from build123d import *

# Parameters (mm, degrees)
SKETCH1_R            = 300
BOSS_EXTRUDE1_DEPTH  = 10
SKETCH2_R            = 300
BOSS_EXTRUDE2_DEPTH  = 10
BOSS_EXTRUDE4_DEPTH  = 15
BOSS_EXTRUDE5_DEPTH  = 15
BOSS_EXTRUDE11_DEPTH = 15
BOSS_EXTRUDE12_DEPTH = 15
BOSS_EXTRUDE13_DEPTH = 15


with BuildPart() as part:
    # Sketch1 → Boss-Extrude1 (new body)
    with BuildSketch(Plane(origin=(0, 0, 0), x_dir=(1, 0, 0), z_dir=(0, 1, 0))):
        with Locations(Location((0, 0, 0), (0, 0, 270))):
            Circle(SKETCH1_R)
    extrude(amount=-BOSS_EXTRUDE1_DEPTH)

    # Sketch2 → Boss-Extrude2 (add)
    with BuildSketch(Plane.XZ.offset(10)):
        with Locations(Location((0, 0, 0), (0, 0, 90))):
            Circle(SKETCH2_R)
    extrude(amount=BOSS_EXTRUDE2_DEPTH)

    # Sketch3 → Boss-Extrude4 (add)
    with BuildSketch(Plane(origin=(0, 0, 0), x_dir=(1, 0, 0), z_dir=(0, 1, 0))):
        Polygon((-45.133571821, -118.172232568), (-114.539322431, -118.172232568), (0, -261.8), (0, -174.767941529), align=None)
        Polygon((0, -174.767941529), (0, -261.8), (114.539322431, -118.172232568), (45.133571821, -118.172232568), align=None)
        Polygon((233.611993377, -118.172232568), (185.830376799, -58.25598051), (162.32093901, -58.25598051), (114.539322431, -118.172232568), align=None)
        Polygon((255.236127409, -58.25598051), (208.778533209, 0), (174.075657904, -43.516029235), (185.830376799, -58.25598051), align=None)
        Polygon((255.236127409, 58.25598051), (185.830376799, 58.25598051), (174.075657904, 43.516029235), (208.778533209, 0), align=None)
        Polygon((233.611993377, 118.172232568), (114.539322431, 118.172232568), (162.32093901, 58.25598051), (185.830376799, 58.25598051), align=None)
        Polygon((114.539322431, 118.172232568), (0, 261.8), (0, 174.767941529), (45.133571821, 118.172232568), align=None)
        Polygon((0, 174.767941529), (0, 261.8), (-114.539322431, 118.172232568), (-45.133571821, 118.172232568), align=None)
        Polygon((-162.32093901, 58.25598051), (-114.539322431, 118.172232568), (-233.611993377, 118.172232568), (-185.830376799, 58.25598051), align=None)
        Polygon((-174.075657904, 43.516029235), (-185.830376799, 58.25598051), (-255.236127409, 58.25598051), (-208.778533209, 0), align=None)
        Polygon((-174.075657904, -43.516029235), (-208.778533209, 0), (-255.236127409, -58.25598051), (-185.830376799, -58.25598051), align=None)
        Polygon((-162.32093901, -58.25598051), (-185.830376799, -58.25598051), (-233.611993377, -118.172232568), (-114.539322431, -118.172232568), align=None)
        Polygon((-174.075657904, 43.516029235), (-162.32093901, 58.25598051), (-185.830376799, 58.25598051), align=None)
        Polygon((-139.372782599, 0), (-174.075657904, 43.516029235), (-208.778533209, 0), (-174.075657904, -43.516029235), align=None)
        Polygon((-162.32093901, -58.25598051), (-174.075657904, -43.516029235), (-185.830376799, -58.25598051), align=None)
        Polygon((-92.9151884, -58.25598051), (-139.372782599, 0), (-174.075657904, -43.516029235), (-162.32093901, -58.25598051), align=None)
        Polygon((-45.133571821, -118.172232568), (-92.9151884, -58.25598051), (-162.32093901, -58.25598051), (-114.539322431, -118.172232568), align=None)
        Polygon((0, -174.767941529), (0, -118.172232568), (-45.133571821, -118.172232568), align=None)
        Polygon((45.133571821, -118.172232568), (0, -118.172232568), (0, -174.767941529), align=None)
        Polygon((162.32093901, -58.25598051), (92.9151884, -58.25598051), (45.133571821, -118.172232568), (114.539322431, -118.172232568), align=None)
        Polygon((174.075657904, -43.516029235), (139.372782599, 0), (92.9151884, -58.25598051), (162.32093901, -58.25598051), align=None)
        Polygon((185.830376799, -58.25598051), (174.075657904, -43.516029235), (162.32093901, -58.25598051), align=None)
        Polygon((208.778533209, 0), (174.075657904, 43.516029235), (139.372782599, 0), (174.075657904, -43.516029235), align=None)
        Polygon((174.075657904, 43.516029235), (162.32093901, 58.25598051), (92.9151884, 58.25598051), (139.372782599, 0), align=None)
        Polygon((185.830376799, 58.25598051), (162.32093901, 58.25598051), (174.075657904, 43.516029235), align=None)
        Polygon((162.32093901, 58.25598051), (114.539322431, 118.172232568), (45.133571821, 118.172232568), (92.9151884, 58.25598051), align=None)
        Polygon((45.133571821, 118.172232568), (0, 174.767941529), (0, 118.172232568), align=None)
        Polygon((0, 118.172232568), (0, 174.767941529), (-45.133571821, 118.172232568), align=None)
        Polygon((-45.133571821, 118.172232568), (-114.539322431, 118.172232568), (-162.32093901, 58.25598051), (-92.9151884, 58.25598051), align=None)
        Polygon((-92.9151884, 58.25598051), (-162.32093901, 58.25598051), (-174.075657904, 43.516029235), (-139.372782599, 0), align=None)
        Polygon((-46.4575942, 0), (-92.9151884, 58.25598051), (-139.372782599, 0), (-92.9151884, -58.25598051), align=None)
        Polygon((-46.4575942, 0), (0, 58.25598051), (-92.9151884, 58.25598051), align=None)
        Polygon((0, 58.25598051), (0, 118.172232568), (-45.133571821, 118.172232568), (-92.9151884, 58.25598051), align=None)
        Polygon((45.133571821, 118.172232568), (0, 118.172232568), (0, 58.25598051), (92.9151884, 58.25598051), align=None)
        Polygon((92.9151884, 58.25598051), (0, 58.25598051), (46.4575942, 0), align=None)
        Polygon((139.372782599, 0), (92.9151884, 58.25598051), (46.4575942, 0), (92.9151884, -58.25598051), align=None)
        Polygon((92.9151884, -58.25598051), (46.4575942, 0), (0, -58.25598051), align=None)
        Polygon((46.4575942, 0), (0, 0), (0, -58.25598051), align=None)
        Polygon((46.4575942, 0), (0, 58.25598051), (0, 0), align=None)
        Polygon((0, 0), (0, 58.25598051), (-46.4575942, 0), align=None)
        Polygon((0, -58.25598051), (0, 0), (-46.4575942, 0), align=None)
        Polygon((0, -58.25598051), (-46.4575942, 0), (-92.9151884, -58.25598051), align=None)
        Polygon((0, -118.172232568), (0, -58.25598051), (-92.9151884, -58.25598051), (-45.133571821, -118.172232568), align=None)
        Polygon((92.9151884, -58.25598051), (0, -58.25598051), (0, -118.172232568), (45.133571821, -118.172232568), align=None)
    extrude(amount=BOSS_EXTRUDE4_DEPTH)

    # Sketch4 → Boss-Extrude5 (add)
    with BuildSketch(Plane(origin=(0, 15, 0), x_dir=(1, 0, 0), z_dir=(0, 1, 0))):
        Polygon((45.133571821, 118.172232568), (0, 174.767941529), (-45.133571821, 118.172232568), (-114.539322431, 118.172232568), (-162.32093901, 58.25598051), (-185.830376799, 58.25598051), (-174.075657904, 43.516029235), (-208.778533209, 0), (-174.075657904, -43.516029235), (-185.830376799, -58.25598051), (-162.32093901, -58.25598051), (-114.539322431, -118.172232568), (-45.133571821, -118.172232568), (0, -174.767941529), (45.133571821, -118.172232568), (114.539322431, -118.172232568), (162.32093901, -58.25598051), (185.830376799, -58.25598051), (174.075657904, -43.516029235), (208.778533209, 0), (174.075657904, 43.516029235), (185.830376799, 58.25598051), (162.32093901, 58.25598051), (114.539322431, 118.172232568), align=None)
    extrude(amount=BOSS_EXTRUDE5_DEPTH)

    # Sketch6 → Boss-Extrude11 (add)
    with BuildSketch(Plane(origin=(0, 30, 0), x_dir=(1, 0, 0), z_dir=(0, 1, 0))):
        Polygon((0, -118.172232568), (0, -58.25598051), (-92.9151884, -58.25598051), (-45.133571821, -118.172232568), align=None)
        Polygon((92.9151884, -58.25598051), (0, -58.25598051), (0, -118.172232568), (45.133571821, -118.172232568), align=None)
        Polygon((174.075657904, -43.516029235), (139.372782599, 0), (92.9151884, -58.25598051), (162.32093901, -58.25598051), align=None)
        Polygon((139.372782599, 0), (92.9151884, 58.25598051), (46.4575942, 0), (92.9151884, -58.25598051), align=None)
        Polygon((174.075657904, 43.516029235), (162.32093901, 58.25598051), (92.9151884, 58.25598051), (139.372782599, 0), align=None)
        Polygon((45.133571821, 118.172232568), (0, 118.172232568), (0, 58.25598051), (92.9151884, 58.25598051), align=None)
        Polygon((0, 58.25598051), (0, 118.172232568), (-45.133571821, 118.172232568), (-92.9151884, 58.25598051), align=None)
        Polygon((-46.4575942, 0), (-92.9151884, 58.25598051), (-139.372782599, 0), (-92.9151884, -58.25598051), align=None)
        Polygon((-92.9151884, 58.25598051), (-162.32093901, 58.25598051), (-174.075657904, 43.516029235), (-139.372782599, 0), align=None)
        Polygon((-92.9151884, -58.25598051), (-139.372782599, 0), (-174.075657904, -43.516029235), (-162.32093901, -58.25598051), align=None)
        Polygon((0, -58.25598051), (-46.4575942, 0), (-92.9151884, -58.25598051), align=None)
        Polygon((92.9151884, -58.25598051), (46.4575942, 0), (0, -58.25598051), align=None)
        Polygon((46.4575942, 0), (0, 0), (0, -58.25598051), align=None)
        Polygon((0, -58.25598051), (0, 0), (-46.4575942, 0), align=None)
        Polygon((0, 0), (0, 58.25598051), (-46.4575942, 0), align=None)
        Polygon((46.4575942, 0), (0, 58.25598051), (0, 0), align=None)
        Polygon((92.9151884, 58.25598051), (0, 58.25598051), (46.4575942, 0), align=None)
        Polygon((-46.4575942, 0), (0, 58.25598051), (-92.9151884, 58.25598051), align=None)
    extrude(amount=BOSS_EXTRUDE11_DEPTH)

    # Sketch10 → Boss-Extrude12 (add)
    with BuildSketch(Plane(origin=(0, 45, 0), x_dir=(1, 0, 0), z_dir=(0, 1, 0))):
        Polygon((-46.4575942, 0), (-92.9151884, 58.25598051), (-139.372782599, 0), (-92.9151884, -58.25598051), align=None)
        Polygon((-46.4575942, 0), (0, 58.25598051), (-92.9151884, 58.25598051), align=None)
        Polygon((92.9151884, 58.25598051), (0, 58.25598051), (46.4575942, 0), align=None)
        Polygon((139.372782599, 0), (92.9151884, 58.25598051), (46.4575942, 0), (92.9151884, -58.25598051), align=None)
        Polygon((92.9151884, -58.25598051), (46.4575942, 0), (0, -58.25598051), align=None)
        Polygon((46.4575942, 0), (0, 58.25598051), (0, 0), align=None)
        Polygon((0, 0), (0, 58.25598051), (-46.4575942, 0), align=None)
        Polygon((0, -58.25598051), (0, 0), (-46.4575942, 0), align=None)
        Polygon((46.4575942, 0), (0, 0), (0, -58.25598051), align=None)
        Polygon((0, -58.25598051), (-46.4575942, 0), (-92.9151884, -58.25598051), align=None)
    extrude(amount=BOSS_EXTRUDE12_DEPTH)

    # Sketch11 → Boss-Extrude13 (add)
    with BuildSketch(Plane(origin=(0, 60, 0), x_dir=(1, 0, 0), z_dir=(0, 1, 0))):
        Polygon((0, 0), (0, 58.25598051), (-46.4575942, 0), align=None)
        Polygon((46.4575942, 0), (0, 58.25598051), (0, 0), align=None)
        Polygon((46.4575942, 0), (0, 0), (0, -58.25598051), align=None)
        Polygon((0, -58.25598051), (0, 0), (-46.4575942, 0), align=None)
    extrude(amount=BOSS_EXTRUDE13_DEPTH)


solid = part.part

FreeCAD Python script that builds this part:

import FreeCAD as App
import Part
import Sketcher

V = App.Vector
Q = App.Units.Quantity

doc = App.newDocument("Part")
params = doc.addObject("Spreadsheet::Sheet", "Params")
for row, (alias, value) in enumerate([
    ("sketch1_diameter", "600 mm"),
    ("pad1_length", "10 mm"),
    ("sketch2_diameter", "600 mm"),
    ("pad2_length", "10 mm"),
    ("pad3_length", "15 mm"),
    ("pad4_length", "15 mm"),
    ("pad5_length", "15 mm"),
    ("pad6_length", "15 mm"),
    ("pad7_length", "15 mm"),
], start=1):
    params.set(f"A{row}", alias)
    params.set(f"B{row}", "=" + value)
    params.setAlias(f"B{row}", alias)

body = doc.addObject("PartDesign::Body", "Body")

# Sketch on XZ plane
sketch1 = doc.addObject("Sketcher::SketchObject", "Sketch")
body.addObject(sketch1)
sketch1.AttachmentSupport = (doc.XZ_Plane, [""])
sketch1.MapMode = "FlatFace"
sketch1.addGeometry(Part.Circle(V(0, 0, 0), V(0, 0, 1), 300), False)
sketch1.addConstraint(Sketcher.Constraint("Coincident", 0, 3, -1, 1))
sketch1.addConstraint(Sketcher.Constraint("Diameter", 0, Q("600 mm")))
sketch1.setExpression("Constraints[1]", "Params.sketch1_diameter")
pad1 = doc.addObject("PartDesign::Pad", "Pad")
body.addObject(pad1)
pad1.Profile = sketch1
pad1.setExpression("Length", "Params.pad1_length")

# Sketch on XZ plane
sketch2 = doc.addObject("Sketcher::SketchObject", "Sketch001")
body.addObject(sketch2)
sketch2.AttachmentSupport = (doc.XZ_Plane, [""])
sketch2.MapMode = "FlatFace"
sketch2.AttachmentOffset = App.Placement(V(0, 0, 10), App.Rotation())
sketch2.addGeometry(Part.Circle(V(0, 0, 0), V(0, 0, 1), 300), False)
sketch2.addConstraint(Sketcher.Constraint("Coincident", 0, 3, -1, 1))
sketch2.addConstraint(Sketcher.Constraint("Diameter", 0, Q("600 mm")))
sketch2.setExpression("Constraints[1]", "Params.sketch2_diameter")
pad2 = doc.addObject("PartDesign::Pad", "Pad001")
body.addObject(pad2)
pad2.Profile = sketch2
pad2.setExpression("Length", "Params.pad2_length")

# Sketch on XZ plane
sketch3 = doc.addObject("Sketcher::SketchObject", "Sketch002")
body.addObject(sketch3)
sketch3.AttachmentSupport = (doc.XZ_Plane, [""])
sketch3.MapMode = "FlatFace"
sketch3.addGeometry(Part.LineSegment(V(0, -261.8, 0), V(-114.539322, -118.172233, 0)), False)
sketch3.addGeometry(Part.LineSegment(V(-114.539322, -118.172233, 0), V(-233.611993, -118.172233, 0)), False)
sketch3.addGeometry(Part.LineSegment(V(-233.611993, -118.172233, 0), V(-185.830377, -58.255981, 0)), False)
sketch3.addGeometry(Part.LineSegment(V(-185.830377, -58.255981, 0), V(-255.236127, -58.255981, 0)), False)
sketch3.addGeometry(Part.LineSegment(V(-255.236127, -58.255981, 0), V(-208.778533, 0, 0)), False)
sketch3.addGeometry(Part.LineSegment(V(-208.778533, 0, 0), V(-255.236127, 58.255981, 0)), False)
sketch3.addGeometry(Part.LineSegment(V(-255.236127, 58.255981, 0), V(-185.830377, 58.255981, 0)), False)
sketch3.addGeometry(Part.LineSegment(V(-185.830377, 58.255981, 0), V(-233.611993, 118.172233, 0)), False)
sketch3.addGeometry(Part.LineSegment(V(-233.611993, 118.172233, 0), V(-114.539322, 118.172233, 0)), False)
sketch3.addGeometry(Part.LineSegment(V(-114.539322, 118.172233, 0), V(0, 261.8, 0)), False)
sketch3.addGeometry(Part.LineSegment(V(0, 261.8, 0), V(114.539322, 118.172233, 0)), False)
sketch3.addGeometry(Part.LineSegment(V(114.539322, 118.172233, 0), V(233.611993, 118.172233, 0)), False)
sketch3.addGeometry(Part.LineSegment(V(233.611993, 118.172233, 0), V(185.830377, 58.255981, 0)), False)
sketch3.addGeometry(Part.LineSegment(V(185.830377, 58.255981, 0), V(255.236127, 58.255981, 0)), False)
sketch3.addGeometry(Part.LineSegment(V(255.236127, 58.255981, 0), V(208.778533, 0, 0)), False)
sketch3.addGeometry(Part.LineSegment(V(208.778533, 0, 0), V(255.236127, -58.255981, 0)), False)
sketch3.addGeometry(Part.LineSegment(V(255.236127, -58.255981, 0), V(185.830377, -58.255981, 0)), False)
sketch3.addGeometry(Part.LineSegment(V(185.830377, -58.255981, 0), V(233.611993, -118.172233, 0)), False)
sketch3.addGeometry(Part.LineSegment(V(233.611993, -118.172233, 0), V(114.539322, -118.172233, 0)), False)
sketch3.addGeometry(Part.LineSegment(V(114.539322, -118.172233, 0), V(0, -261.8, 0)), False)
sketch3.addConstraint(Sketcher.Constraint("Coincident", 0, 2, 1, 1))
sketch3.addConstraint(Sketcher.Constraint("Coincident", 1, 2, 2, 1))
sketch3.addConstraint(Sketcher.Constraint("Coincident", 2, 2, 3, 1))
sketch3.addConstraint(Sketcher.Constraint("Coincident", 3, 2, 4, 1))
sketch3.addConstraint(Sketcher.Constraint("Coincident", 4, 2, 5, 1))
sketch3.addConstraint(Sketcher.Constraint("Coincident", 5, 2, 6, 1))
sketch3.addConstraint(Sketcher.Constraint("Coincident", 6, 2, 7, 1))
sketch3.addConstraint(Sketcher.Constraint("Coincident", 7, 2, 8, 1))
sketch3.addConstraint(Sketcher.Constraint("Coincident", 8, 2, 9, 1))
sketch3.addConstraint(Sketcher.Constraint("Coincident", 9, 2, 10, 1))
sketch3.addConstraint(Sketcher.Constraint("Coincident", 10, 2, 11, 1))
sketch3.addConstraint(Sketcher.Constraint("Coincident", 11, 2, 12, 1))
sketch3.addConstraint(Sketcher.Constraint("Coincident", 12, 2, 13, 1))
sketch3.addConstraint(Sketcher.Constraint("Coincident", 13, 2, 14, 1))
sketch3.addConstraint(Sketcher.Constraint("Coincident", 14, 2, 15, 1))
sketch3.addConstraint(Sketcher.Constraint("Coincident", 15, 2, 16, 1))
sketch3.addConstraint(Sketcher.Constraint("Coincident", 16, 2, 17, 1))
sketch3.addConstraint(Sketcher.Constraint("Coincident", 17, 2, 18, 1))
sketch3.addConstraint(Sketcher.Constraint("Coincident", 18, 2, 19, 1))
sketch3.addConstraint(Sketcher.Constraint("Coincident", 19, 2, 0, 1))
sketch3.addConstraint(Sketcher.Constraint("Horizontal", 1))
sketch3.addConstraint(Sketcher.Constraint("Horizontal", 3))
sketch3.addConstraint(Sketcher.Constraint("Horizontal", 6))
sketch3.addConstraint(Sketcher.Constraint("Horizontal", 8))
sketch3.addConstraint(Sketcher.Constraint("Horizontal", 11))
sketch3.addConstraint(Sketcher.Constraint("Horizontal", 13))
sketch3.addConstraint(Sketcher.Constraint("Horizontal", 16))
sketch3.addConstraint(Sketcher.Constraint("Horizontal", 18))
sketch3.addConstraint(Sketcher.Constraint("Symmetric", 0, 2, 10, 2, -1, 1))
sketch3.addConstraint(Sketcher.Constraint("Symmetric", 2, 2, 12, 2, -1, 1))
sketch3.addConstraint(Sketcher.Constraint("Symmetric", 4, 2, 14, 2, -1, 1))
sketch3.addConstraint(Sketcher.Constraint("Symmetric", 5, 2, 15, 2, -1, 1))
sketch3.addConstraint(Sketcher.Constraint("Symmetric", 7, 2, 17, 2, -1, 1))
sketch3.addConstraint(Sketcher.Constraint("Symmetric", 9, 2, 19, 2, -1, 1))
sketch3.addConstraint(Sketcher.Constraint("Symmetric", 8, 2, 10, 2, -2))
sketch3.addConstraint(Sketcher.Constraint("Symmetric", 6, 2, 12, 2, -2))
sketch3.addConstraint(Sketcher.Constraint("PointOnObject", 4, 2, -1))
sketch3.addConstraint(Sketcher.Constraint("PointOnObject", 9, 2, -2))
sketch3.addConstraint(Sketcher.Constraint("Parallel", 2, 4))
sketch3.addConstraint(Sketcher.Constraint("Parallel", 0, 5))
sketch3.addConstraint(Sketcher.Constraint("Parallel", 5, 7))
sketch3.addConstraint(Sketcher.Constraint("Parallel", 4, 9))
sketch3.addConstraint(Sketcher.Constraint("Parallel", 9, 12))
sketch3.addConstraint(Sketcher.Constraint("Parallel", 12, 14))
sketch3.addConstraint(Sketcher.Constraint("Parallel", 15, 17))
sketch3.addConstraint(Sketcher.Constraint("Parallel", 14, 19))
sketch3.addConstraint(Sketcher.Constraint("DistanceY", -1, 1, 9, 2, Q("261.8 mm")))
sketch3.addConstraint(Sketcher.Constraint("DistanceX", 1, 2, 1, 1, Q("119.072671 mm")))
sketch3.addConstraint(Sketcher.Constraint("DistanceX", 3, 2, 3, 1, Q("69.405751 mm")))
sketch3.addConstraint(Sketcher.Constraint("DistanceX", 6, 2, 10, 2, Q("300.369699 mm")))
sketch3.addConstraint(Sketcher.Constraint("Distance", 0, Q("183.70681 mm")))
sketch3.addConstraint(Sketcher.Constraint("DistanceY", 2, 2, -1, 1, Q("58.255981 mm")))
pad3 = doc.addObject("PartDesign::Pad", "Pad002")
body.addObject(pad3)
pad3.Profile = sketch3
pad3.setExpression("Length", "Params.pad3_length")
pad3.Reversed = True

# Sketch on XZ plane
sketch4 = doc.addObject("Sketcher::SketchObject", "Sketch003")
body.addObject(sketch4)
sketch4.AttachmentSupport = (doc.XZ_Plane, [""])
sketch4.MapMode = "FlatFace"
sketch4.AttachmentOffset = App.Placement(V(0, 0, -15), App.Rotation())
sketch4.addGeometry(Part.LineSegment(V(45.133572, -118.172233, 0), V(0, -174.767942, 0)), False)
sketch4.addGeometry(Part.LineSegment(V(0, -174.767942, 0), V(-45.133572, -118.172233, 0)), False)
sketch4.addGeometry(Part.LineSegment(V(-45.133572, -118.172233, 0), V(-114.539322, -118.172233, 0)), False)
sketch4.addGeometry(Part.LineSegment(V(-114.539322, -118.172233, 0), V(-162.320939, -58.255981, 0)), False)
sketch4.addGeometry(Part.LineSegment(V(-162.320939, -58.255981, 0), V(-185.830377, -58.255981, 0)), False)
sketch4.addGeometry(Part.LineSegment(V(-185.830377, -58.255981, 0), V(-174.075658, -43.516029, 0)), False)
sketch4.addGeometry(Part.LineSegment(V(-174.075658, -43.516029, 0), V(-208.778533, 0, 0)), False)
sketch4.addGeometry(Part.LineSegment(V(-208.778533, 0, 0), V(-174.075658, 43.516029, 0)), False)
sketch4.addGeometry(Part.LineSegment(V(-174.075658, 43.516029, 0), V(-185.830377, 58.255981, 0)), False)
sketch4.addGeometry(Part.LineSegment(V(-185.830377, 58.255981, 0), V(-162.320939, 58.255981, 0)), False)
sketch4.addGeometry(Part.LineSegment(V(-162.320939, 58.255981, 0), V(-114.539322, 118.172233, 0)), False)
sketch4.addGeometry(Part.LineSegment(V(-114.539322, 118.172233, 0), V(-45.133572, 118.172233, 0)), False)
sketch4.addGeometry(Part.LineSegment(V(-45.133572, 118.172233, 0), V(0, 174.767942, 0)), False)
sketch4.addGeometry(Part.LineSegment(V(0, 174.767942, 0), V(45.133572, 118.172233, 0)), False)
sketch4.addGeometry(Part.LineSegment(V(45.133572, 118.172233, 0), V(114.539322, 118.172233, 0)), False)
sketch4.addGeometry(Part.LineSegment(V(114.539322, 118.172233, 0), V(162.320939, 58.255981, 0)), False)
sketch4.addGeometry(Part.LineSegment(V(162.320939, 58.255981, 0), V(185.830377, 58.255981, 0)), False)
sketch4.addGeometry(Part.LineSegment(V(185.830377, 58.255981, 0), V(174.075658, 43.516029, 0)), False)
sketch4.addGeometry(Part.LineSegment(V(174.075658, 43.516029, 0), V(208.778533, 0, 0)), False)
sketch4.addGeometry(Part.LineSegment(V(208.778533, 0, 0), V(174.075658, -43.516029, 0)), False)
sketch4.addGeometry(Part.LineSegment(V(174.075658, -43.516029, 0), V(185.830377, -58.255981, 0)), False)
sketch4.addGeometry(Part.LineSegment(V(185.830377, -58.255981, 0), V(162.320939, -58.255981, 0)), False)
sketch4.addGeometry(Part.LineSegment(V(162.320939, -58.255981, 0), V(114.539322, -118.172233, 0)), False)
sketch4.addGeometry(Part.LineSegment(V(114.539322, -118.172233, 0), V(45.133572, -118.172233, 0)), False)
sketch4.addConstraint(Sketcher.Constraint("Coincident", 0, 2, 1, 1))
sketch4.addConstraint(Sketcher.Constraint("Coincident", 1, 2, 2, 1))
sketch4.addConstraint(Sketcher.Constraint("Coincident", 2, 2, 3, 1))
sketch4.addConstraint(Sketcher.Constraint("Coincident", 3, 2, 4, 1))
sketch4.addConstraint(Sketcher.Constraint("Coincident", 4, 2, 5, 1))
sketch4.addConstraint(Sketcher.Constraint("Coincident", 5, 2, 6, 1))
sketch4.addConstraint(Sketcher.Constraint("Coincident", 6, 2, 7, 1))
sketch4.addConstraint(Sketcher.Constraint("Coincident", 7, 2, 8, 1))
sketch4.addConstraint(Sketcher.Constraint("Coincident", 8, 2, 9, 1))
sketch4.addConstraint(Sketcher.Constraint("Coincident", 9, 2, 10, 1))
sketch4.addConstraint(Sketcher.Constraint("Coincident", 10, 2, 11, 1))
sketch4.addConstraint(Sketcher.Constraint("Coincident", 11, 2, 12, 1))
sketch4.addConstraint(Sketcher.Constraint("Coincident", 12, 2, 13, 1))
sketch4.addConstraint(Sketcher.Constraint("Coincident", 13, 2, 14, 1))
sketch4.addConstraint(Sketcher.Constraint("Coincident", 14, 2, 15, 1))
sketch4.addConstraint(Sketcher.Constraint("Coincident", 15, 2, 16, 1))
sketch4.addConstraint(Sketcher.Constraint("Coincident", 16, 2, 17, 1))
sketch4.addConstraint(Sketcher.Constraint("Coincident", 17, 2, 18, 1))
sketch4.addConstraint(Sketcher.Constraint("Coincident", 18, 2, 19, 1))
sketch4.addConstraint(Sketcher.Constraint("Coincident", 19, 2, 20, 1))
sketch4.addConstraint(Sketcher.Constraint("Coincident", 20, 2, 21, 1))
sketch4.addConstraint(Sketcher.Constraint("Coincident", 21, 2, 22, 1))
sketch4.addConstraint(Sketcher.Constraint("Coincident", 22, 2, 23, 1))
sketch4.addConstraint(Sketcher.Constraint("Coincident", 23, 2, 0, 1))
sketch4.addConstraint(Sketcher.Constraint("Horizontal", 2))
sketch4.addConstraint(Sketcher.Constraint("Horizontal", 4))
sketch4.addConstraint(Sketcher.Constraint("Horizontal", 9))
sketch4.addConstraint(Sketcher.Constraint("Horizontal", 11))
sketch4.addConstraint(Sketcher.Constraint("Horizontal", 14))
sketch4.addConstraint(Sketcher.Constraint("Horizontal", 16))
sketch4.addConstraint(Sketcher.Constraint("Horizontal", 21))
sketch4.addConstraint(Sketcher.Constraint("Horizontal", 23))
sketch4.addConstraint(Sketcher.Constraint("Symmetric", 0, 2, 12, 2, -1, 1))
sketch4.addConstraint(Sketcher.Constraint("Symmetric", 1, 2, 13, 2, -1, 1))
sketch4.addConstraint(Sketcher.Constraint("Symmetric", 3, 2, 15, 2, -1, 1))
sketch4.addConstraint(Sketcher.Constraint("Symmetric", 5, 2, 17, 2, -1, 1))
sketch4.addConstraint(Sketcher.Constraint("Symmetric", 6, 2, 18, 2, -1, 1))
sketch4.addConstraint(Sketcher.Constraint("Symmetric", 7, 2, 19, 2, -1, 1))
sketch4.addConstraint(Sketcher.Constraint("Symmetric", 8, 2, 20, 2, -1, 1))
sketch4.addConstraint(Sketcher.Constraint("Symmetric", 10, 2, 22, 2, -1, 1))
sketch4.addConstraint(Sketcher.Constraint("Symmetric", 11, 2, 13, 2, -2))
sketch4.addConstraint(Sketcher.Constraint("Symmetric", 9, 2, 15, 2, -2))
sketch4.addConstraint(Sketcher.Constraint("Symmetric", 7, 2, 17, 2, -2))
sketch4.addConstraint(Sketcher.Constraint("PointOnObject", 0, 2, -2))
sketch4.addConstraint(Sketcher.Constraint("PointOnObject", 6, 2, -1))
sketch4.addConstraint(Sketcher.Constraint("Parallel", 1, 3))
sketch4.addConstraint(Sketcher.Constraint("Parallel", 0, 5))
sketch4.addConstraint(Sketcher.Constraint("Parallel", 3, 6))
sketch4.addConstraint(Sketcher.Constraint("Parallel", 5, 7))
sketch4.addConstraint(Sketcher.Constraint("Parallel", 6, 8))
sketch4.addConstraint(Sketcher.Constraint("Parallel", 7, 10))
sketch4.addConstraint(Sketcher.Constraint("Parallel", 13, 15))
sketch4.addConstraint(Sketcher.Constraint("Parallel", 12, 17))
sketch4.addConstraint(Sketcher.Constraint("Parallel", 19, 22))
sketch4.addConstraint(Sketcher.Constraint("DistanceX", 2, 2, 2, 1, Q("69.405751 mm")))
sketch4.addConstraint(Sketcher.Constraint("Distance", 0, Q("72.388629 mm")))
sketch4.addConstraint(Sketcher.Constraint("Distance", 6, Q("55.65909 mm")))
sketch4.addConstraint(Sketcher.Constraint("DistanceX", 4, 2, 4, 1, Q("23.509438 mm")))
sketch4.addConstraint(Sketcher.Constraint("DistanceY", 0, 2, -1, 1, Q("174.767942 mm")))
sketch4.addConstraint(Sketcher.Constraint("DistanceX", 1, 2, -1, 1, Q("45.133572 mm")))
sketch4.addConstraint(Sketcher.Constraint("DistanceX", 3, 2, -1, 1, Q("162.320939 mm")))
pad4 = doc.addObject("PartDesign::Pad", "Pad003")
body.addObject(pad4)
pad4.Profile = sketch4
pad4.setExpression("Length", "Params.pad4_length")
pad4.Reversed = True

# Sketch on XZ plane
sketch5 = doc.addObject("Sketcher::SketchObject", "Sketch004")
body.addObject(sketch5)
sketch5.AttachmentSupport = (doc.XZ_Plane, [""])
sketch5.MapMode = "FlatFace"
sketch5.AttachmentOffset = App.Placement(V(0, 0, -30), App.Rotation())
sketch5.addGeometry(Part.LineSegment(V(-45.133572, -118.172233, 0), V(-92.915188, -58.255981, 0)), False)
sketch5.addGeometry(Part.LineSegment(V(-92.915188, -58.255981, 0), V(-162.320939, -58.255981, 0)), False)
sketch5.addGeometry(Part.LineSegment(V(-162.320939, -58.255981, 0), V(-174.075658, -43.516029, 0)), False)
sketch5.addGeometry(Part.LineSegment(V(-174.075658, -43.516029, 0), V(-139.372783, 0, 0)), False)
sketch5.addGeometry(Part.LineSegment(V(-139.372783, 0, 0), V(-174.075658, 43.516029, 0)), False)
sketch5.addGeometry(Part.LineSegment(V(-174.075658, 43.516029, 0), V(-162.320939, 58.255981, 0)), False)
sketch5.addGeometry(Part.LineSegment(V(-162.320939, 58.255981, 0), V(-92.915188, 58.255981, 0)), False)
sketch5.addGeometry(Part.LineSegment(V(-92.915188, 58.255981, 0), V(-45.133572, 118.172233, 0)), False)
sketch5.addGeometry(Part.LineSegment(V(-45.133572, 118.172233, 0), V(45.133572, 118.172233, 0)), False)
sketch5.addGeometry(Part.LineSegment(V(45.133572, 118.172233, 0), V(92.915188, 58.255981, 0)), False)
sketch5.addGeometry(Part.LineSegment(V(92.915188, 58.255981, 0), V(162.320939, 58.255981, 0)), False)
sketch5.addGeometry(Part.LineSegment(V(162.320939, 58.255981, 0), V(174.075658, 43.516029, 0)), False)
sketch5.addGeometry(Part.LineSegment(V(174.075658, 43.516029, 0), V(139.372783, 0, 0)), False)
sketch5.addGeometry(Part.LineSegment(V(139.372783, 0, 0), V(174.075658, -43.516029, 0)), False)
sketch5.addGeometry(Part.LineSegment(V(174.075658, -43.516029, 0), V(162.320939, -58.255981, 0)), False)
sketch5.addGeometry(Part.LineSegment(V(162.320939, -58.255981, 0), V(92.915188, -58.255981, 0)), False)
sketch5.addGeometry(Part.LineSegment(V(92.915188, -58.255981, 0), V(45.133572, -118.172233, 0)), False)
sketch5.addGeometry(Part.LineSegment(V(45.133572, -118.172233, 0), V(-45.133572, -118.172233, 0)), False)
sketch5.addConstraint(Sketcher.Constraint("Coincident", 0, 2, 1, 1))
sketch5.addConstraint(Sketcher.Constraint("Coincident", 1, 2, 2, 1))
sketch5.addConstraint(Sketcher.Constraint("Coincident", 2, 2, 3, 1))
sketch5.addConstraint(Sketcher.Constraint("Coincident", 3, 2, 4, 1))
sketch5.addConstraint(Sketcher.Constraint("Coincident", 4, 2, 5, 1))
sketch5.addConstraint(Sketcher.Constraint("Coincident", 5, 2, 6, 1))
sketch5.addConstraint(Sketcher.Constraint("Coincident", 6, 2, 7, 1))
sketch5.addConstraint(Sketcher.Constraint("Coincident", 7, 2, 8, 1))
sketch5.addConstraint(Sketcher.Constraint("Coincident", 8, 2, 9, 1))
sketch5.addConstraint(Sketcher.Constraint("Coincident", 9, 2, 10, 1))
sketch5.addConstraint(Sketcher.Constraint("Coincident", 10, 2, 11, 1))
sketch5.addConstraint(Sketcher.Constraint("Coincident", 11, 2, 12, 1))
sketch5.addConstraint(Sketcher.Constraint("Coincident", 12, 2, 13, 1))
sketch5.addConstraint(Sketcher.Constraint("Coincident", 13, 2, 14, 1))
sketch5.addConstraint(Sketcher.Constraint("Coincident", 14, 2, 15, 1))
sketch5.addConstraint(Sketcher.Constraint("Coincident", 15, 2, 16, 1))
sketch5.addConstraint(Sketcher.Constraint("Coincident", 16, 2, 17, 1))
sketch5.addConstraint(Sketcher.Constraint("Coincident", 17, 2, 0, 1))
sketch5.addConstraint(Sketcher.Constraint("Horizontal", 1))
sketch5.addConstraint(Sketcher.Constraint("Horizontal", 6))
sketch5.addConstraint(Sketcher.Constraint("Horizontal", 8))
sketch5.addConstraint(Sketcher.Constraint("Horizontal", 10))
sketch5.addConstraint(Sketcher.Constraint("Horizontal", 15))
sketch5.addConstraint(Sketcher.Constraint("Horizontal", 17))
sketch5.addConstraint(Sketcher.Constraint("Symmetric", 0, 2, 9, 2, -1, 1))
sketch5.addConstraint(Sketcher.Constraint("Symmetric", 2, 2, 11, 2, -1, 1))
sketch5.addConstraint(Sketcher.Constraint("Symmetric", 3, 2, 12, 2, -1, 1))
sketch5.addConstraint(Sketcher.Constraint("Symmetric", 4, 2, 13, 2, -1, 1))
sketch5.addConstraint(Sketcher.Constraint("Symmetric", 5, 2, 14, 2, -1, 1))
sketch5.addConstraint(Sketcher.Constraint("Symmetric", 7, 2, 16, 2, -1, 1))
sketch5.addConstraint(Sketcher.Constraint("Symmetric", 6, 2, 9, 2, -2))
sketch5.addConstraint(Sketcher.Constraint("Symmetric", 4, 2, 11, 2, -2))
sketch5.addConstraint(Sketcher.Constraint("PointOnObject", 3, 2, -1))
sketch5.addConstraint(Sketcher.Constraint("Parallel", 0, 2))
sketch5.addConstraint(Sketcher.Constraint("Parallel", 2, 4))
sketch5.addConstraint(Sketcher.Constraint("Parallel", 3, 5))
sketch5.addConstraint(Sketcher.Constraint("Parallel", 5, 7))
sketch5.addConstraint(Sketcher.Constraint("Parallel", 4, 9))
sketch5.addConstraint(Sketcher.Constraint("Parallel", 9, 11))
sketch5.addConstraint(Sketcher.Constraint("Parallel", 14, 16))
sketch5.addConstraint(Sketcher.Constraint("DistanceX", 1, 2, 1, 1, Q("69.405751 mm")))
sketch5.addConstraint(Sketcher.Constraint("Distance", 3, Q("55.65909 mm")))
sketch5.addConstraint(Sketcher.Constraint("DistanceX", 8, 1, 8, 2, Q("90.267144 mm")))
sketch5.addConstraint(Sketcher.Constraint("DistanceX", 0, 2, -1, 1, Q("92.915188 mm")))
sketch5.addConstraint(Sketcher.Constraint("DistanceY", 0, 2, -1, 1, Q("58.255981 mm")))
sketch5.addConstraint(Sketcher.Constraint("DistanceY", 2, 2, -1, 1, Q("43.516029 mm")))
pad5 = doc.addObject("PartDesign::Pad", "Pad004")
body.addObject(pad5)
pad5.Profile = sketch5
pad5.setExpression("Length", "Params.pad5_length")
pad5.Reversed = True

# Sketch on XZ plane
sketch6 = doc.addObject("Sketcher::SketchObject", "Sketch005")
body.addObject(sketch6)
sketch6.AttachmentSupport = (doc.XZ_Plane, [""])
sketch6.MapMode = "FlatFace"
sketch6.AttachmentOffset = App.Placement(V(0, 0, -45), App.Rotation())
sketch6.addGeometry(Part.LineSegment(V(92.915188, 58.255981, 0), V(139.372783, 0, 0)), False)
sketch6.addGeometry(Part.LineSegment(V(139.372783, 0, 0), V(92.915188, -58.255981, 0)), False)
sketch6.addGeometry(Part.LineSegment(V(92.915188, -58.255981, 0), V(-92.915188, -58.255981, 0)), False)
sketch6.addGeometry(Part.LineSegment(V(-92.915188, -58.255981, 0), V(-139.372783, 0, 0)), False)
sketch6.addGeometry(Part.LineSegment(V(-139.372783, 0, 0), V(-92.915188, 58.255981, 0)), False)
sketch6.addGeometry(Part.LineSegment(V(-92.915188, 58.255981, 0), V(92.915188, 58.255981, 0)), False)
sketch6.addConstraint(Sketcher.Constraint("Coincident", 0, 2, 1, 1))
sketch6.addConstraint(Sketcher.Constraint("Coincident", 1, 2, 2, 1))
sketch6.addConstraint(Sketcher.Constraint("Coincident", 2, 2, 3, 1))
sketch6.addConstraint(Sketcher.Constraint("Coincident", 3, 2, 4, 1))
sketch6.addConstraint(Sketcher.Constraint("Coincident", 4, 2, 5, 1))
sketch6.addConstraint(Sketcher.Constraint("Coincident", 5, 2, 0, 1))
sketch6.addConstraint(Sketcher.Constraint("Horizontal", 2))
sketch6.addConstraint(Sketcher.Constraint("Horizontal", 5))
sketch6.addConstraint(Sketcher.Constraint("Symmetric", 0, 2, 3, 2, -1, 1))
sketch6.addConstraint(Sketcher.Constraint("Symmetric", 1, 2, 4, 2, -1, 1))
sketch6.addConstraint(Sketcher.Constraint("PointOnObject", 0, 2, -1))
sketch6.addConstraint(Sketcher.Constraint("Parallel", 0, 3))
sketch6.addConstraint(Sketcher.Constraint("Vertical", 2, 2, 4, 2))
sketch6.addConstraint(Sketcher.Constraint("DistanceX", 2, 2, 2, 1, Q("185.830377 mm")))
sketch6.addConstraint(Sketcher.Constraint("DistanceY", 1, 2, -1, 1, Q("58.255981 mm")))
sketch6.addConstraint(Sketcher.Constraint("DistanceX", 2, 2, 0, 2, Q("232.287971 mm")))
pad6 = doc.addObject("PartDesign::Pad", "Pad005")
body.addObject(pad6)
pad6.Profile = sketch6
pad6.setExpression("Length", "Params.pad6_length")
pad6.Reversed = True

# Sketch on XZ plane
sketch7 = doc.addObject("Sketcher::SketchObject", "Sketch006")
body.addObject(sketch7)
sketch7.AttachmentSupport = (doc.XZ_Plane, [""])
sketch7.MapMode = "FlatFace"
sketch7.AttachmentOffset = App.Placement(V(0, 0, -60), App.Rotation())
sketch7.addGeometry(Part.LineSegment(V(0, -58.255981, 0), V(-46.457594, 0, 0)), False)
sketch7.addGeometry(Part.LineSegment(V(-46.457594, 0, 0), V(0, 58.255981, 0)), False)
sketch7.addGeometry(Part.LineSegment(V(0, 58.255981, 0), V(46.457594, 0, 0)), False)
sketch7.addGeometry(Part.LineSegment(V(46.457594, 0, 0), V(0, -58.255981, 0)), False)
sketch7.addConstraint(Sketcher.Constraint("Coincident", 0, 2, 1, 1))
sketch7.addConstraint(Sketcher.Constraint("Coincident", 1, 2, 2, 1))
sketch7.addConstraint(Sketcher.Constraint("Coincident", 2, 2, 3, 1))
sketch7.addConstraint(Sketcher.Constraint("Coincident", 3, 2, 0, 1))
sketch7.addConstraint(Sketcher.Constraint("Symmetric", 0, 2, 2, 2, -1, 1))
sketch7.addConstraint(Sketcher.Constraint("Symmetric", 1, 2, 3, 2, -1, 1))
sketch7.addConstraint(Sketcher.Constraint("PointOnObject", 0, 2, -1))
sketch7.addConstraint(Sketcher.Constraint("PointOnObject", 1, 2, -2))
sketch7.addConstraint(Sketcher.Constraint("DistanceY", -1, 1, 1, 2, Q("58.255981 mm")))
sketch7.addConstraint(Sketcher.Constraint("DistanceX", 0, 2, 2, 2, Q("92.915188 mm")))
pad7 = doc.addObject("PartDesign::Pad", "Pad006")
body.addObject(pad7)
pad7.Profile = sketch7
pad7.setExpression("Length", "Params.pad7_length")
pad7.Reversed = True

doc.recompute()
